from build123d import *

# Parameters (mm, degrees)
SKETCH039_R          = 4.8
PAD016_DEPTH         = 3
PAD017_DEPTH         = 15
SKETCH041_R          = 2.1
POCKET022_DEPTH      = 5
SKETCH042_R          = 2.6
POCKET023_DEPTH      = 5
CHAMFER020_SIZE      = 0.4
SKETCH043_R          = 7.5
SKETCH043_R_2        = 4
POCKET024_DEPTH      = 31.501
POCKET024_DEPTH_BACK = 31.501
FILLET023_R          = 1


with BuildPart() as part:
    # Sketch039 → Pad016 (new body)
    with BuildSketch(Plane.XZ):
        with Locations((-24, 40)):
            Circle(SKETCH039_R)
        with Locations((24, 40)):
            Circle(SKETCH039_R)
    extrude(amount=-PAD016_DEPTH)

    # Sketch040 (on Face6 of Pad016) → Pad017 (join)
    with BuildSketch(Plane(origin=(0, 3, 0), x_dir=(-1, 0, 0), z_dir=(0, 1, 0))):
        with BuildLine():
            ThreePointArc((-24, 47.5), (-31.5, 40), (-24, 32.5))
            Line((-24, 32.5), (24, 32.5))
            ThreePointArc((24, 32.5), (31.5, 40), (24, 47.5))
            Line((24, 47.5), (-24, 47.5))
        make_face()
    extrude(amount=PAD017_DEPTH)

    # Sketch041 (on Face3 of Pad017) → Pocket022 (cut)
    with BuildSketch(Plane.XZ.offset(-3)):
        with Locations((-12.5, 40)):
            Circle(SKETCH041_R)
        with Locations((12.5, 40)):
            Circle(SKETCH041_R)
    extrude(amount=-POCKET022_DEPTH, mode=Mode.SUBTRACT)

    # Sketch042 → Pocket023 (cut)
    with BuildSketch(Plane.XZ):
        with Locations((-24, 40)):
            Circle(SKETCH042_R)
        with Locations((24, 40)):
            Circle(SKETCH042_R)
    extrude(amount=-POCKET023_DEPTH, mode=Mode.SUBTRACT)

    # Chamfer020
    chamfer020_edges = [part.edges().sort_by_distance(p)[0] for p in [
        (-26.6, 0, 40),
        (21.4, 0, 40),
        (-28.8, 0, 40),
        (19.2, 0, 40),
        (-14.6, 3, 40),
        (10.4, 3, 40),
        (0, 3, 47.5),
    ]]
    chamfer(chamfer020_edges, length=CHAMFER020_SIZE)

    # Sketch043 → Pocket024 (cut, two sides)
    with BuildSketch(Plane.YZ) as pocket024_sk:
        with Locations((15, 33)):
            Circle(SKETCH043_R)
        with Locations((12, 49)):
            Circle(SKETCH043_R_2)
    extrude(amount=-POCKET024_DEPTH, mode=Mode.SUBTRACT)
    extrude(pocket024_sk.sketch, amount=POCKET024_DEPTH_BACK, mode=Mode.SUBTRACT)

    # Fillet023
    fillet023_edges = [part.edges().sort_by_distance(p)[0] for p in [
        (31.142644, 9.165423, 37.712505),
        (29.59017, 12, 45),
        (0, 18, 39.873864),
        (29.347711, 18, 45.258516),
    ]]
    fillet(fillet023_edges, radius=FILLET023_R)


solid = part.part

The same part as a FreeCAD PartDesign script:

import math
import FreeCAD as App
import Part
import Sketcher


def edges_at(feature, points):
    """Names of the edges that pass closest to the given points."""
    edges = feature.Shape.Edges
    near = lambda p: min(range(len(edges)), key=lambda i: edges[i].distToShape(Part.Vertex(*p))[0])
    return sorted({f"Edge{near(p) + 1}" for p in points})

doc = App.newDocument("Part")
body = doc.addObject("PartDesign::Body", "Body")
body.AllowCompound = True

sketch1 = body.newObject("Sketcher::SketchObject", "Sketch")
sketch1.AttachmentSupport = (doc.getObject("XZ_Plane"), [""])
sketch1.MapMode = "FlatFace"
sketch1.addGeometry([
    Part.Circle(App.Vector(-24, 40, 0), App.Vector(0, 0, 1), 4.8),
    Part.Circle(App.Vector(24, 40, 0), App.Vector(0, 0, 1), 4.8),
], False)
sketch1.addConstraint([
    Sketcher.Constraint("Equal", 0, 1),
    Sketcher.Constraint("Symmetric", 0, 3, 1, 3, -2),
    Sketcher.Constraint("Diameter", 0, 9.6),
    Sketcher.Constraint("DistanceX", 0, 3, -1, 1, 24.0),
    Sketcher.Constraint("DistanceY", -1, 1, 0, 3, 40.0),
])
pad1 = body.newObject("PartDesign::Pad", "Pad")
pad1.Profile = sketch1
pad1.Length = 3
pad1.Reversed = True

sketch2 = body.newObject("Sketcher::SketchObject", "Sketch001")
sketch2.AttachmentSupport = (doc.getObject("XZ_Plane"), [""])
sketch2.MapMode = "FlatFace"
sketch2.AttachmentOffset = App.Placement(App.Vector(0, 0, -3), App.Rotation())
sketch2.addGeometry([
    Part.ArcOfCircle(Part.Circle(App.Vector(24, 40, 0), App.Vector(0, 0, 1), 8), math.radians(-90), math.radians(90)),
    Part.LineSegment(App.Vector(24, 32, 0), App.Vector(-24, 32, 0)),
    Part.ArcOfCircle(Part.Circle(App.Vector(-24, 40, 0), App.Vector(0, 0, 1), 8), math.radians(90), math.radians(270)),
    Part.LineSegment(App.Vector(-24, 48, 0), App.Vector(24, 48, 0)),
], False)
sketch2.addConstraint([
    Sketcher.Constraint("Tangent", 0, 1, 1, 1),
    Sketcher.Constraint("Tangent", 1, 2, 2, 2),
    Sketcher.Constraint("Tangent", 2, 1, 3, 1),
    Sketcher.Constraint("Tangent", 3, 2, 0, 2),
    Sketcher.Constraint("Horizontal", 1),
    Sketcher.Constraint("Horizontal", 3),
    Sketcher.Constraint("Radius", 0, 7.5),
    Sketcher.Constraint("DistanceX", 1, 2, 1, 1, 48.0),
    Sketcher.Constraint("DistanceX", -1, 1, 0, 3, 24.0),
    Sketcher.Constraint("DistanceY", -1, 1, 0, 3, 40.0),
])
pad2 = body.newObject("PartDesign::Pad", "Pad001")
pad2.Profile = sketch2
pad2.Length = 15
pad2.Reversed = True

sketch3 = body.newObject("Sketcher::SketchObject", "Sketch002")
sketch3.AttachmentSupport = (doc.getObject("XZ_Plane"), [""])
sketch3.MapMode = "FlatFace"
sketch3.AttachmentOffset = App.Placement(App.Vector(0, 0, -3), App.Rotation())
sketch3.addGeometry([
    Part.Circle(App.Vector(-12.5, 40, 0), App.Vector(0, 0, 1), 2.1),
    Part.Circle(App.Vector(12.5, 40, 0), App.Vector(0, 0, 1), 2.1),
], False)
sketch3.addConstraint([
    Sketcher.Constraint("Equal", 0, 1),
    Sketcher.Constraint("Symmetric", 0, 3, 1, 3, -2),
    Sketcher.Constraint("Diameter", 0, 4.2),
    Sketcher.Constraint("DistanceY", -1, 1, 0, 3, 40.0),
    Sketcher.Constraint("DistanceX", 0, 3, 1, 3, 25.0),
])
pocket1 = body.newObject("PartDesign::Pocket", "Pocket")
pocket1.Profile = sketch3
pocket1.Length = 5

sketch4 = body.newObject("Sketcher::SketchObject", "Sketch003")
sketch4.AttachmentSupport = (doc.getObject("XZ_Plane"), [""])
sketch4.MapMode = "FlatFace"
sketch4.addGeometry([
    Part.Circle(App.Vector(-24, 40, 0), App.Vector(0, 0, 1), 2.6),
    Part.Circle(App.Vector(24, 40, 0), App.Vector(0, 0, 1), 2.6),
], False)
sketch4.addConstraint([
    Sketcher.Constraint("Equal", 0, 1),
    Sketcher.Constraint("Symmetric", 0, 3, 1, 3, -2),
    Sketcher.Constraint("Diameter", 0, 5.2),
    Sketcher.Constraint("DistanceX", 0, 3, -1, 1, 24.0),
    Sketcher.Constraint("DistanceY", -1, 1, 0, 3, 40.0),
])
pocket2 = body.newObject("PartDesign::Pocket", "Pocket001")
pocket2.Profile = sketch4
pocket2.Length = 5
doc.recompute()

chamfer = body.newObject("PartDesign::Chamfer", "Chamfer")
chamfer.Base = (pocket2, edges_at(pocket2, [
    (-26.6, 0, 40),
    (21.4, 0, 40),
    (-28.8, 0, 40),
    (19.2, 0, 40),
    (-14.6, 3, 40),
    (10.4, 3, 40),
    (0, 3, 47.5),
]))
chamfer.Size = 0.4

sketch5 = body.newObject("Sketcher::SketchObject", "Sketch004")
sketch5.AttachmentSupport = (doc.getObject("YZ_Plane"), [""])
sketch5.MapMode = "FlatFace"
sketch5.addGeometry([
    Part.Circle(App.Vector(15, 33, 0), App.Vector(0, 0, 1), 7.5),
    Part.Circle(App.Vector(12, 49, 0), App.Vector(0, 0, 1), 4),
], False)
sketch5.addConstraint([
    Sketcher.Constraint("Diameter", 0, 15.0),
    Sketcher.Constraint("Diameter", 1, 8.0),
    Sketcher.Constraint("DistanceX", -1, 1, 0, 3, 15.0),
    Sketcher.Constraint("DistanceY", -1, 1, 0, 3, 33.0),
    Sketcher.Constraint("DistanceX", -1, 1, 1, 3, 12.0),
    Sketcher.Constraint("DistanceY", -1, 1, 1, 3, 49.0),
])
pocket3 = body.newObject("PartDesign::Pocket", "Pocket002")
pocket3.Profile = sketch5
pocket3.Type = "ThroughAll"
pocket3.Midplane = True
doc.recompute()

fillet = body.newObject("PartDesign::Fillet", "Fillet")
fillet.Base = (pocket3, edges_at(pocket3, [
    (31.143, 9.165, 37.713),
    (29.59, 12, 45),
    (0, 18, 39.874),
    (29.348, 18, 45.259),
]))
fillet.Radius = 1

doc.recompute()
